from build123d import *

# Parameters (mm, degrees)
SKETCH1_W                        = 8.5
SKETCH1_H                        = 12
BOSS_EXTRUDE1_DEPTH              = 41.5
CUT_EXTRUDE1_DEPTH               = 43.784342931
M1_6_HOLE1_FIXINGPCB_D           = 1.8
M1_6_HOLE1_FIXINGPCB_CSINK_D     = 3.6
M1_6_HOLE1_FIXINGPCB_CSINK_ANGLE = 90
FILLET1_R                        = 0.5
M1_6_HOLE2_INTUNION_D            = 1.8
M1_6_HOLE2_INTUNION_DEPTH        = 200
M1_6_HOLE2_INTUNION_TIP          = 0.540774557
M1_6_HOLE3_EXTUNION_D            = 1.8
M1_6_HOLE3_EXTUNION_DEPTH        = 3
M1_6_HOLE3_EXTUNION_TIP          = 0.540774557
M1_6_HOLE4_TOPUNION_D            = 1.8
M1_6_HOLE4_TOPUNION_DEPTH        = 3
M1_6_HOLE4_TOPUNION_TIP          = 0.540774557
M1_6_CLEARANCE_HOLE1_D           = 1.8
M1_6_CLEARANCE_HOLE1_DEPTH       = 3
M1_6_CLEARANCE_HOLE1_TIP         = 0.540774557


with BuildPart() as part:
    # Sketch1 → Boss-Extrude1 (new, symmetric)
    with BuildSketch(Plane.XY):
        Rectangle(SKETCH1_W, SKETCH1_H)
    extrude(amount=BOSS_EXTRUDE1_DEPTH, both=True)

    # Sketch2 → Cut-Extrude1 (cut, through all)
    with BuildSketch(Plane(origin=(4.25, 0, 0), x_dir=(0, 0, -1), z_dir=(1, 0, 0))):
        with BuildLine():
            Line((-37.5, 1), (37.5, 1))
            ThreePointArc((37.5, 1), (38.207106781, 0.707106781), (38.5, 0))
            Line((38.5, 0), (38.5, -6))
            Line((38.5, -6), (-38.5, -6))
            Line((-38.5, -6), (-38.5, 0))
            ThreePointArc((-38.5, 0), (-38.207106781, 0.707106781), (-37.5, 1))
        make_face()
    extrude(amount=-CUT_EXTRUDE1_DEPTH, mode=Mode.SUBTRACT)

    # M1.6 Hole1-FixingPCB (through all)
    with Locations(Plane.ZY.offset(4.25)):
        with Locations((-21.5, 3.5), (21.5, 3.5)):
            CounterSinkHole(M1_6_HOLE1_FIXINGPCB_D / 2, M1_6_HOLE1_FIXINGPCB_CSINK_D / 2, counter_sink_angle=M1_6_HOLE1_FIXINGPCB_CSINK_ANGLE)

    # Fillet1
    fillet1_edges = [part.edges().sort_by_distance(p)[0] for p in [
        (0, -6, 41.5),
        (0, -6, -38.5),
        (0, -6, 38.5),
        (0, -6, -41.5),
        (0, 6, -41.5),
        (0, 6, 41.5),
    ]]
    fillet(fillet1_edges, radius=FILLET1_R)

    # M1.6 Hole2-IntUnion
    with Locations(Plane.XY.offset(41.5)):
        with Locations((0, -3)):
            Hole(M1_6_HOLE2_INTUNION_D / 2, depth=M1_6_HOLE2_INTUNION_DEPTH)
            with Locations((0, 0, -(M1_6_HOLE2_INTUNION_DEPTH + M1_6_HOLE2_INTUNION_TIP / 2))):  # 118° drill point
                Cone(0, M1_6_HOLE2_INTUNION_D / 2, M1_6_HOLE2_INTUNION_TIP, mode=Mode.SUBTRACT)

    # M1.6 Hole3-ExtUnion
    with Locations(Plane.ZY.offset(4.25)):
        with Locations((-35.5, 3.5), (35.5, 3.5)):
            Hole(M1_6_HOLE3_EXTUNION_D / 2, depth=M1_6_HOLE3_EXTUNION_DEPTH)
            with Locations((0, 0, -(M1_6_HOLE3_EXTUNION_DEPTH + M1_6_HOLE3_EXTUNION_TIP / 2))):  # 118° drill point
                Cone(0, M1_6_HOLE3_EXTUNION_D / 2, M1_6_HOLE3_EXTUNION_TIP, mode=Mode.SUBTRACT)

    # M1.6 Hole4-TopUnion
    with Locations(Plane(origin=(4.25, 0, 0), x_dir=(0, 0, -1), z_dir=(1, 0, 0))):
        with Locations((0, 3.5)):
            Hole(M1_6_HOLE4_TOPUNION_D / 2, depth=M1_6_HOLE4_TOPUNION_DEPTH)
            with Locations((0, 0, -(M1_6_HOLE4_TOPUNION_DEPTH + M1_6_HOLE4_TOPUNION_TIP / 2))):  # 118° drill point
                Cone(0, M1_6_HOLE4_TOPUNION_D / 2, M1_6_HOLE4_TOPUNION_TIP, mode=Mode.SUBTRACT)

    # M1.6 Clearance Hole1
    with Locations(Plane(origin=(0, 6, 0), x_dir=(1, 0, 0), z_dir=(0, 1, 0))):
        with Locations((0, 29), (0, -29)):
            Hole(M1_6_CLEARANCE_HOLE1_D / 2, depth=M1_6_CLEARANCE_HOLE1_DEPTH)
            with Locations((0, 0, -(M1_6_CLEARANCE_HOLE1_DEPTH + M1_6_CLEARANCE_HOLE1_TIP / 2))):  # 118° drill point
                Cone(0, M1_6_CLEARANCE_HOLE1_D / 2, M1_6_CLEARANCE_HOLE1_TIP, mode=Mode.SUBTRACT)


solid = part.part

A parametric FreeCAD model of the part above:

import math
import FreeCAD as App
import Part
import Sketcher
from FreeCAD import Vector


def edges_at(feature, points):
    """Names of the edges that pass closest to the given points."""
    edges = feature.Shape.Edges
    near = lambda p: min(range(len(edges)), key=lambda i: edges[i].distToShape(Part.Vertex(*p))[0])
    return sorted({f"Edge{near(p) + 1}" for p in points})


def add_polygon(sketch, points):
    """Adds a closed chain of lines whose ends are joined by coincident constraints."""
    first, n = sketch.GeometryCount, len(points)
    for a, b in zip(points, points[1:] + points[:1]):
        sketch.addGeometry(Part.LineSegment(App.Vector(*a, 0), App.Vector(*b, 0)), False)
    for i in range(n):
        sketch.addConstraint(Sketcher.Constraint("Coincident", first + i, 2, first + (i + 1) % n, 1))

doc = App.newDocument("Part")
body = doc.addObject("PartDesign::Body", "Body")

# Sketch on XY plane
sketch1 = body.newObject("Sketcher::SketchObject", "Sketch")
sketch1.AttachmentSupport = (doc.getObject("XY_Plane"), [""])
sketch1.MapMode = "FlatFace"
add_polygon(sketch1, [(-4, 6), (-4, -6), (4, -6), (4, 6)])  # lines 0-3
sketch1.addConstraint([
    Sketcher.Constraint("Vertical", 0),
    Sketcher.Constraint("Horizontal", 1),
    Sketcher.Constraint("Vertical", 2),
    Sketcher.Constraint("Horizontal", 3),
    Sketcher.Constraint("Symmetric", 0, 2, 2, 2, -1, 1),
    Sketcher.Constraint("DistanceY", 0, 2, 0, 1, 12.0),
    Sketcher.Constraint("DistanceX", 1, 1, 1, 2, 8.5),
])
pad1 = body.newObject("PartDesign::Pad", "Pad")
pad1.Profile = sketch1
pad1.Length = 83
pad1.Midplane = True

# Sketch on YZ plane
sketch2 = body.newObject("Sketcher::SketchObject", "Sketch001")
sketch2.AttachmentSupport = (doc.getObject("YZ_Plane"), [""])
sketch2.MapMode = "FlatFace"
sketch2.AttachmentOffset = App.Placement(Vector(0, 0, 4.25), App.Rotation())
sketch2.addGeometry([
    Part.LineSegment(Vector(1, -37.5, 0), Vector(1, 37.5, 0)),  # 0
    Part.ArcOfCircle(Part.Circle(Vector(0, 37.5, 0), Vector(0, 0, 1), 1), math.radians(0), math.radians(90)),  # 1
    Part.LineSegment(Vector(0, 38.5, 0), Vector(-6, 38.5, 0)),  # 2
    Part.LineSegment(Vector(-6, 38.5, 0), Vector(-6, -38.5, 0)),  # 3
    Part.LineSegment(Vector(-6, -38.5, 0), Vector(0, -38.5, 0)),  # 4
    Part.ArcOfCircle(Part.Circle(Vector(0, -37.5, 0), Vector(0, 0, 1), 1), math.radians(-90), math.radians(0)),  # 5
], False)
sketch2.addConstraint([
    Sketcher.Constraint("Tangent", 0, 2, 1, 1),
    Sketcher.Constraint("Tangent", 1, 2, 2, 1),
    Sketcher.Constraint("Coincident", 2, 2, 3, 1),
    Sketcher.Constraint("Coincident", 3, 2, 4, 1),
    Sketcher.Constraint("Tangent", 4, 2, 5, 1),
    Sketcher.Constraint("Tangent", 5, 2, 0, 1),
    Sketcher.Constraint("Vertical", 0),
    Sketcher.Constraint("Horizontal", 2),
    Sketcher.Constraint("Vertical", 3),
    Sketcher.Constraint("Horizontal", 4),
    Sketcher.Constraint("Equal", 1, 5),
    Sketcher.Constraint("Symmetric", 1, 3, 5, 3, -1, 1),
    Sketcher.Constraint("Radius", 1, 1.0),
    Sketcher.Constraint("DistanceX", 2, 2, 2, 1, 6.0),
    Sketcher.Constraint("DistanceY", 0, 1, 0, 2, 75.0),
])
pocket1 = body.newObject("PartDesign::Pocket", "Pocket")
pocket1.Profile = sketch2
pocket1.Type = "ThroughAll"

# Sketch on YZ plane
sketch3 = body.newObject("Sketcher::SketchObject", "Sketch002")
sketch3.AttachmentSupport = (doc.getObject("YZ_Plane"), [""])
sketch3.MapMode = "FlatFace"
sketch3.AttachmentOffset = App.Placement(Vector(0, 0, -4.25), App.Rotation())
sketch3.addGeometry([
    Part.Circle(Vector(3.5, -21.5, 0), Vector(0, 0, 1), 0.9),
    Part.Circle(Vector(3.5, 21.5, 0), Vector(0, 0, 1), 0.9),
], False)
sketch3.addConstraint([
    Sketcher.Constraint("Equal", 0, 1),
    Sketcher.Constraint("Symmetric", 0, 3, 1, 3, -1),
    Sketcher.Constraint("Diameter", 0, 1.8),
    Sketcher.Constraint("DistanceY", 0, 3, 1, 3, 43.0),
    Sketcher.Constraint("DistanceX", -1, 1, 0, 3, 3.5),
])
doc.recompute()
hole = body.newObject("PartDesign::Hole", "Hole")
hole.Profile = sketch3
hole.ThreadType = "None"
hole.Diameter = 1.8
hole.DepthType = "ThroughAll"
hole.HoleCutType = "Countersink"
hole.HoleCutDiameter = 3.6
hole.HoleCutCountersinkAngle = 90
hole.Reversed = True
doc.recompute()

fillet = body.newObject("PartDesign::Fillet", "Fillet")
fillet.Base = (hole, edges_at(hole, [
    (0, -6, 41.5),
    (0, -6, -38.5),
    (0, -6, 38.5),
    (0, -6, -41.5),
    (0, 6, -41.5),
    (0, 6, 41.5),
]))
fillet.Radius = 0.5

# Sketch on XY plane
sketch4 = body.newObject("Sketcher::SketchObject", "Sketch003")
sketch4.AttachmentSupport = (doc.getObject("XY_Plane"), [""])
sketch4.MapMode = "FlatFace"
sketch4.AttachmentOffset = App.Placement(Vector(0, 0, 41.5), App.Rotation())
sketch4.addGeometry(Part.Circle(Vector(0, -3, 0), Vector(0, 0, 1), 0.9), False)
sketch4.addConstraint([
    Sketcher.Constraint("PointOnObject", 0, 3, -2),
    Sketcher.Constraint("Diameter", 0, 1.8),
    Sketcher.Constraint("DistanceY", 0, 3, -1, 1, 3.0),
])
doc.recompute()
hole2 = body.newObject("PartDesign::Hole", "Hole001")
hole2.Profile = sketch4
hole2.ThreadType = "None"
hole2.Diameter = 1.8
hole2.DepthType = "Dimension"
hole2.Depth = 200
hole2.DrillPoint = "Angled"
hole2.DrillPointAngle = 118

# Sketch on YZ plane
sketch5 = body.newObject("Sketcher::SketchObject", "Sketch004")
sketch5.AttachmentSupport = (doc.getObject("YZ_Plane"), [""])
sketch5.MapMode = "FlatFace"
sketch5.AttachmentOffset = App.Placement(Vector(0, 0, -4.25), App.Rotation())
sketch5.addGeometry([
    Part.Circle(Vector(3.5, -35.5, 0), Vector(0, 0, 1), 0.9),
    Part.Circle(Vector(3.5, 35.5, 0), Vector(0, 0, 1), 0.9),
], False)
sketch5.addConstraint([
    Sketcher.Constraint("Equal", 0, 1),
    Sketcher.Constraint("Symmetric", 0, 3, 1, 3, -1),
    Sketcher.Constraint("Diameter", 0, 1.8),
    Sketcher.Constraint("DistanceY", 0, 3, 1, 3, 71.0),
    Sketcher.Constraint("DistanceX", -1, 1, 0, 3, 3.5),
])
doc.recompute()
hole3 = body.newObject("PartDesign::Hole", "Hole002")
hole3.Profile = sketch5
hole3.ThreadType = "None"
hole3.Diameter = 1.8
hole3.DepthType = "Dimension"
hole3.Depth = 3
hole3.DrillPoint = "Angled"
hole3.DrillPointAngle = 118
hole3.Reversed = True

# Sketch on YZ plane
sketch6 = body.newObject("Sketcher::SketchObject", "Sketch005")
sketch6.AttachmentSupport = (doc.getObject("YZ_Plane"), [""])
sketch6.MapMode = "FlatFace"
sketch6.AttachmentOffset = App.Placement(Vector(0, 0, 4.25), App.Rotation())
sketch6.addGeometry(Part.Circle(Vector(3.5, 0, 0), Vector(0, 0, 1), 0.9), False)
sketch6.addConstraint([
    Sketcher.Constraint("PointOnObject", 0, 3, -1),
    Sketcher.Constraint("Diameter", 0, 1.8),
    Sketcher.Constraint("DistanceX", -1, 1, 0, 3, 3.5),
])
doc.recompute()
hole4 = body.newObject("PartDesign::Hole", "Hole003")
hole4.Profile = sketch6
hole4.ThreadType = "None"
hole4.Diameter = 1.8
hole4.DepthType = "Dimension"
hole4.Depth = 3
hole4.DrillPoint = "Angled"
hole4.DrillPointAngle = 118

# Sketch on XZ plane
sketch7 = body.newObject("Sketcher::SketchObject", "Sketch006")
sketch7.AttachmentSupport = (doc.getObject("XZ_Plane"), [""])
sketch7.MapMode = "FlatFace"
sketch7.AttachmentOffset = App.Placement(Vector(0, 0, -6), App.Rotation())
sketch7.addGeometry([
    Part.Circle(Vector(0, -29, 0), Vector(0, 0, 1), 0.9),
    Part.Circle(Vector(0, 29, 0), Vector(0, 0, 1), 0.9),
], False)
sketch7.addConstraint([
    Sketcher.Constraint("Equal", 0, 1),
    Sketcher.Constraint("Symmetric", 0, 3, 1, 3, -1, 1),
    Sketcher.Constraint("PointOnObject", 0, 3, -2),
    Sketcher.Constraint("Diameter", 0, 1.8),
    Sketcher.Constraint("DistanceY", 0, 3, -1, 1, 29.0),
])
doc.recompute()
hole5 = body.newObject("PartDesign::Hole", "Hole004")
hole5.Profile = sketch7
hole5.ThreadType = "None"
hole5.Diameter = 1.8
hole5.DepthType = "Dimension"
hole5.Depth = 3
hole5.DrillPoint = "Angled"
hole5.DrillPointAngle = 118
hole5.Reversed = True

doc.recompute()
